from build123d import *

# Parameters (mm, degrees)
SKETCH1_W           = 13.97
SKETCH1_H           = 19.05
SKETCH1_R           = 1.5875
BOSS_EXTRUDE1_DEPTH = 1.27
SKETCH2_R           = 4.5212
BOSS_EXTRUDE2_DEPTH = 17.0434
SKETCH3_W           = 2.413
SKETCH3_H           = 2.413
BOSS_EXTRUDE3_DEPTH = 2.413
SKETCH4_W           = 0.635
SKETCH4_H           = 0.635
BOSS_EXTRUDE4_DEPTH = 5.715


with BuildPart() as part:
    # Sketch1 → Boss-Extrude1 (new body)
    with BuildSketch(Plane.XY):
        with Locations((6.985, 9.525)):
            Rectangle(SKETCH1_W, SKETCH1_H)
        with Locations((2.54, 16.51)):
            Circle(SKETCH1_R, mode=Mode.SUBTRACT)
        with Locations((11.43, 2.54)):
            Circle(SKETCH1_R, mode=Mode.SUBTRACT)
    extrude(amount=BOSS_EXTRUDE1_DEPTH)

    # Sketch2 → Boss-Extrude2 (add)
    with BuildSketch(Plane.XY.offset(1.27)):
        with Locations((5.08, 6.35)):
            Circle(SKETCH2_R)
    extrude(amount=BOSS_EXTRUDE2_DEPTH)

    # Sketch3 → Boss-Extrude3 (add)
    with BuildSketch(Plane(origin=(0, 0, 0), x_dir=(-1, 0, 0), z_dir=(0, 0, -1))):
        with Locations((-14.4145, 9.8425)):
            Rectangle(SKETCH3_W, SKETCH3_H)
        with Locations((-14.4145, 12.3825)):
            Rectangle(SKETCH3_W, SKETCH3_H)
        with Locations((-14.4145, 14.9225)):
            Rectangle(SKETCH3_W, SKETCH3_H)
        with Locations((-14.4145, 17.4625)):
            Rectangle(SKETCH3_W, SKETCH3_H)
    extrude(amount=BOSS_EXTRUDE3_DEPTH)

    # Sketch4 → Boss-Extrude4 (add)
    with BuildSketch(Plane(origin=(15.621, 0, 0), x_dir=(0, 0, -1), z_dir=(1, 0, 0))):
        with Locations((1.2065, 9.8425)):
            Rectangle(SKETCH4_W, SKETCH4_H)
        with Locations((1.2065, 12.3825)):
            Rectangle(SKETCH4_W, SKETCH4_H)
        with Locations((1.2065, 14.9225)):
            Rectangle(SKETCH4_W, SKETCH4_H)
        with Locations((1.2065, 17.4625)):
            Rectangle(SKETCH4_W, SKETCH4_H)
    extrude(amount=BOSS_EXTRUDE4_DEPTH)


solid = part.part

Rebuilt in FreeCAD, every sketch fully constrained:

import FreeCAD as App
import Part
import Sketcher
from FreeCAD import Vector
Q = App.Units.Quantity


def add_polygon(sketch, points):
    """Adds a closed chain of lines whose ends are joined by coincident constraints."""
    first, n = sketch.GeometryCount, len(points)
    for a, b in zip(points, points[1:] + points[:1]):
        sketch.addGeometry(Part.LineSegment(App.Vector(*a, 0), App.Vector(*b, 0)), False)
    for i in range(n):
        sketch.addConstraint(Sketcher.Constraint("Coincident", first + i, 2, first + (i + 1) % n, 1))

doc = App.newDocument("Part")
params = doc.addObject("Spreadsheet::Sheet", "Params")
for row, (alias, value) in enumerate([
    ("sketch1_diameter", "0.125 in"),
    ("sketch1_width", "0.55 in"),
    ("sketch1_height", "0.75 in"),
    ("pad1_length", "0.05 in"),
    ("sketch2_diameter", "0.356 in"),
    ("pad2_length", "0.671 in"),
    ("sketch3_width", "0.095 in"),
    ("pad3_length", "0.095 in"),
    ("sketch4_width", "0.025 in"),
    ("pad4_length", "0.225 in"),
], start=1):
    params.set(f"A{row}", alias)
    params.set(f"B{row}", "=" + value)
    params.setAlias(f"B{row}", alias)

body = doc.addObject("PartDesign::Body", "Body")

# Sketch on XY plane
sketch1 = body.newObject("Sketcher::SketchObject", "Sketch")
sketch1.AttachmentSupport = (doc.getObject("XY_Plane"), [""])
sketch1.MapMode = "FlatFace"
add_polygon(sketch1, [(0, 19.1), (0, 0), (14, 0), (14, 19.1)])  # lines 0-3
sketch1.addGeometry(Part.Circle(Vector(11.4, 2.5, 0), Vector(0, 0, 1), 1.6), False)  # 4
sketch1.addGeometry(Part.Circle(Vector(2.5, 16.5, 0), Vector(0, 0, 1), 1.6), False)  # 5
sketch1.addConstraint(Sketcher.Constraint("Vertical", 0))
sketch1.addConstraint(Sketcher.Constraint("Horizontal", 1))
sketch1.addConstraint(Sketcher.Constraint("Vertical", 2))
sketch1.addConstraint(Sketcher.Constraint("Horizontal", 3))
sketch1.addConstraint(Sketcher.Constraint("Coincident", 0, 2, -1, 1))
sketch1.addConstraint(Sketcher.Constraint("Equal", 4, 5))
sketch1.addConstraint(Sketcher.Constraint("Diameter", 4, Q("0.125 in")))
sketch1.addConstraint(Sketcher.Constraint("DistanceX", 1, 1, 1, 2, Q("0.55 in")))
sketch1.addConstraint(Sketcher.Constraint("DistanceY", 0, 2, 0, 1, Q("0.75 in")))
sketch1.addConstraint(Sketcher.Constraint("DistanceY", -1, 1, 4, 3, Q("0.1 in")))
sketch1.addConstraint(Sketcher.Constraint("DistanceX", -1, 1, 5, 3, Q("0.1 in")))
sketch1.addConstraint(Sketcher.Constraint("DistanceX", 4, 3, 1, 2, Q("0.1 in")))
sketch1.addConstraint(Sketcher.Constraint("DistanceY", 5, 3, 2, 2, Q("0.1 in")))
sketch1.setExpression("Constraints[10]", "Params.sketch1_diameter")
sketch1.setExpression("Constraints[11]", "Params.sketch1_width")
sketch1.setExpression("Constraints[12]", "Params.sketch1_height")
pad1 = body.newObject("PartDesign::Pad", "Pad")
pad1.Profile = sketch1
pad1.setExpression("Length", "Params.pad1_length")

# Sketch on XY plane
sketch2 = body.newObject("Sketcher::SketchObject", "Sketch001")
sketch2.AttachmentSupport = (doc.getObject("XY_Plane"), [""])
sketch2.MapMode = "FlatFace"
sketch2.AttachmentOffset = App.Placement(Vector(0, 0, 0.05 * 25.4), App.Rotation())
sketch2.addGeometry(Part.Circle(Vector(5.1, 6.3, 0), Vector(0, 0, 1), 4.5), False)
sketch2.addConstraint(Sketcher.Constraint("Diameter", 0, Q("0.356 in")))
sketch2.addConstraint(Sketcher.Constraint("DistanceX", -1, 1, 0, 3, Q("0.2 in")))
sketch2.addConstraint(Sketcher.Constraint("DistanceY", -1, 1, 0, 3, Q("0.25 in")))
sketch2.setExpression("Constraints[0]", "Params.sketch2_diameter")
pad2 = body.newObject("PartDesign::Pad", "Pad001")
pad2.Profile = sketch2
pad2.setExpression("Length", "Params.pad2_length")

# Sketch on XY plane
sketch3 = body.newObject("Sketcher::SketchObject", "Sketch002")
sketch3.AttachmentSupport = (doc.getObject("XY_Plane"), [""])
sketch3.MapMode = "FlatFace"
add_polygon(sketch3, [(15.6, 11), (15.6, 8.6), (13.2, 8.6), (13.2, 11)])  # lines 0-3
add_polygon(sketch3, [(15.6, 13.6), (15.6, 11.2), (13.2, 11.2), (13.2, 13.6)])  # lines 4-7
add_polygon(sketch3, [(15.6, 16.1), (15.6, 13.7), (13.2, 13.7), (13.2, 16.1)])  # lines 8-11
add_polygon(sketch3, [(15.6, 18.7), (15.6, 16.3), (13.2, 16.3), (13.2, 18.7)])  # lines 12-15
sketch3.addConstraint(Sketcher.Constraint("Vertical", 0))
sketch3.addConstraint(Sketcher.Constraint("Horizontal", 1))
sketch3.addConstraint(Sketcher.Constraint("Vertical", 2))
sketch3.addConstraint(Sketcher.Constraint("Horizontal", 3))
sketch3.addConstraint(Sketcher.Constraint("Vertical", 4))
sketch3.addConstraint(Sketcher.Constraint("Horizontal", 5))
sketch3.addConstraint(Sketcher.Constraint("Vertical", 6))
sketch3.addConstraint(Sketcher.Constraint("Horizontal", 7))
sketch3.addConstraint(Sketcher.Constraint("Vertical", 8))
sketch3.addConstraint(Sketcher.Constraint("Horizontal", 9))
sketch3.addConstraint(Sketcher.Constraint("Vertical", 10))
sketch3.addConstraint(Sketcher.Constraint("Horizontal", 11))
sketch3.addConstraint(Sketcher.Constraint("Vertical", 12))
sketch3.addConstraint(Sketcher.Constraint("Horizontal", 13))
sketch3.addConstraint(Sketcher.Constraint("Vertical", 14))
sketch3.addConstraint(Sketcher.Constraint("Horizontal", 15))
sketch3.addConstraint(Sketcher.Constraint("Vertical", 3, 2, 4, 2))
sketch3.addConstraint(Sketcher.Constraint("Vertical", 2, 2, 5, 2))
sketch3.addConstraint(Sketcher.Constraint("Vertical", 7, 2, 8, 2))
sketch3.addConstraint(Sketcher.Constraint("Vertical", 6, 2, 9, 2))
sketch3.addConstraint(Sketcher.Constraint("Vertical", 11, 2, 12, 2))
sketch3.addConstraint(Sketcher.Constraint("Vertical", 10, 2, 13, 2))
sketch3.addConstraint(Sketcher.Constraint("Equal", 15, 0))
sketch3.addConstraint(Sketcher.Constraint("Equal", 2, 4))
sketch3.addConstraint(Sketcher.Constraint("Equal", 6, 8))
sketch3.addConstraint(Sketcher.Constraint("Equal", 10, 12))
sketch3.addConstraint(Sketcher.Constraint("DistanceY", 0, 2, 4, 2, Q("0.1 in")))
sketch3.addConstraint(Sketcher.Constraint("DistanceY", 4, 2, 8, 2, Q("0.1 in")))
sketch3.addConstraint(Sketcher.Constraint("DistanceY", 8, 2, 12, 2, Q("0.1 in")))
sketch3.addConstraint(Sketcher.Constraint("DistanceX", 1, 2, 1, 1, Q("0.095 in")))
sketch3.addConstraint(Sketcher.Constraint("DistanceY", -1, 1, 0, 2, Q("0.34 in")))
sketch3.addConstraint(Sketcher.Constraint("DistanceX", -1, 1, 1, 2, Q("0.52 in")))
sketch3.setExpression("Constraints[45]", "Params.sketch3_width")
pad3 = body.newObject("PartDesign::Pad", "Pad002")
pad3.Profile = sketch3
pad3.setExpression("Length", "Params.pad3_length")
pad3.Reversed = True

# Sketch on YZ plane
sketch4 = body.newObject("Sketcher::SketchObject", "Sketch003")
sketch4.AttachmentSupport = (doc.getObject("YZ_Plane"), [""])
sketch4.MapMode = "FlatFace"
sketch4.AttachmentOffset = App.Placement(Vector(0, 0, 0.615 * 25.4), App.Rotation())
add_polygon(sketch4, [(10.2, -0.9), (9.5, -0.9), (9.5, -1.5), (10.2, -1.5)])  # lines 0-3
add_polygon(sketch4, [(12.7, -0.9), (12.1, -0.9), (12.1, -1.5), (12.7, -1.5)])  # lines 4-7
add_polygon(sketch4, [(15.2, -0.9), (14.6, -0.9), (14.6, -1.5), (15.2, -1.5)])  # lines 8-11
add_polygon(sketch4, [(17.8, -0.9), (17.1, -0.9), (17.1, -1.5), (17.8, -1.5)])  # lines 12-15
sketch4.addConstraint(Sketcher.Constraint("Horizontal", 0))
sketch4.addConstraint(Sketcher.Constraint("Vertical", 1))
sketch4.addConstraint(Sketcher.Constraint("Horizontal", 2))
sketch4.addConstraint(Sketcher.Constraint("Vertical", 3))
sketch4.addConstraint(Sketcher.Constraint("Horizontal", 4))
sketch4.addConstraint(Sketcher.Constraint("Vertical", 5))
sketch4.addConstraint(Sketcher.Constraint("Horizontal", 6))
sketch4.addConstraint(Sketcher.Constraint("Vertical", 7))
sketch4.addConstraint(Sketcher.Constraint("Horizontal", 8))
sketch4.addConstraint(Sketcher.Constraint("Vertical", 9))
sketch4.addConstraint(Sketcher.Constraint("Horizontal", 10))
sketch4.addConstraint(Sketcher.Constraint("Vertical", 11))
sketch4.addConstraint(Sketcher.Constraint("Horizontal", 12))
sketch4.addConstraint(Sketcher.Constraint("Vertical", 13))
sketch4.addConstraint(Sketcher.Constraint("Horizontal", 14))
sketch4.addConstraint(Sketcher.Constraint("Vertical", 15))
sketch4.addConstraint(Sketcher.Constraint("Horizontal", 3, 2, 4, 2))
sketch4.addConstraint(Sketcher.Constraint("Horizontal", 2, 2, 5, 2))
sketch4.addConstraint(Sketcher.Constraint("Horizontal", 7, 2, 8, 2))
sketch4.addConstraint(Sketcher.Constraint("Horizontal", 6, 2, 9, 2))
sketch4.addConstraint(Sketcher.Constraint("Horizontal", 11, 2, 12, 2))
sketch4.addConstraint(Sketcher.Constraint("Horizontal", 10, 2, 13, 2))
sketch4.addConstraint(Sketcher.Constraint("Equal", 2, 4))
sketch4.addConstraint(Sketcher.Constraint("Equal", 6, 8))
sketch4.addConstraint(Sketcher.Constraint("Equal", 10, 12))
sketch4.addConstraint(Sketcher.Constraint("Equal", 14, 1))
sketch4.addConstraint(Sketcher.Constraint("DistanceX", -1, 1, 2, 2, Q("0.4 in")))
sketch4.addConstraint(Sketcher.Constraint("DistanceX", -1, 1, 6, 2, Q("0.5 in")))
sketch4.addConstraint(Sketcher.Constraint("DistanceX", -1, 1, 10, 2, Q("0.6 in")))
sketch4.addConstraint(Sketcher.Constraint("DistanceX", -1, 1, 14, 2, Q("0.7 in")))
sketch4.addConstraint(Sketcher.Constraint("DistanceX", 0, 2, 0, 1, Q("0.025 in")))
sketch4.addConstraint(Sketcher.Constraint("DistanceY", 1, 2, -1, 1, Q("0.06 in")))
sketch4.setExpression("Constraints[46]", "Params.sketch4_width")
pad4 = body.newObject("PartDesign::Pad", "Pad003")
pad4.Profile = sketch4
pad4.setExpression("Length", "Params.pad4_length")

doc.recompute()
